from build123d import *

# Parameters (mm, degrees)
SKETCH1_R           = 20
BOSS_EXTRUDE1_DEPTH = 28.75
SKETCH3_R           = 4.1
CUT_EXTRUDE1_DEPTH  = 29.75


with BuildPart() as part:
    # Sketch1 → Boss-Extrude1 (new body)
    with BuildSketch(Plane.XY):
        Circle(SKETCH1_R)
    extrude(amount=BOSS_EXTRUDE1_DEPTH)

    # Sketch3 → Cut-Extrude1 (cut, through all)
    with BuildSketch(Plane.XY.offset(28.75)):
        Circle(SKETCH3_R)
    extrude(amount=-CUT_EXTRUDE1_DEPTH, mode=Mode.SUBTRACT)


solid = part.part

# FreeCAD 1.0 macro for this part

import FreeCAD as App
import Part
import Sketcher
Q = App.Units.Quantity

doc = App.newDocument("Part")
body = doc.addObject("PartDesign::Body", "Body")

# Sketch on XY plane
sketch1 = doc.addObject("Sketcher::SketchObject", "Sketch")
body.addObject(sketch1)
sketch1.AttachmentSupport = (doc.XY_Plane, [""])
sketch1.MapMode = "FlatFace"
sketch1.addGeometry(Part.Circle(App.Vector(0, 0, 0), App.Vector(0, 0, 1), 20), False)
sketch1.addConstraint(Sketcher.Constraint("Coincident", 0, 3, -1, 1))
sketch1.addConstraint(Sketcher.Constraint("Diameter", 0, Q("40 mm")))
pad1 = doc.addObject("PartDesign::Pad", "Pad")
body.addObject(pad1)
pad1.Profile = sketch1
pad1.Length = 28.75

# Sketch on XY plane
sketch2 = doc.addObject("Sketcher::SketchObject", "Sketch001")
body.addObject(sketch2)
sketch2.AttachmentSupport = (doc.XY_Plane, [""])
sketch2.MapMode = "FlatFace"
sketch2.AttachmentOffset = App.Placement(App.Vector(0, 0, 28.75), App.Rotation())
sketch2.addGeometry(Part.Circle(App.Vector(0, 0, 0), App.Vector(0, 0, 1), 4.1), False)
sketch2.addConstraint(Sketcher.Constraint("Coincident", 0, 3, -1, 1))
sketch2.addConstraint(Sketcher.Constraint("Diameter", 0, Q("8.2 mm")))
pocket1 = doc.addObject("PartDesign::Pocket", "Pocket")
body.addObject(pocket1)
pocket1.Profile = sketch2
pocket1.Type = "ThroughAll"

doc.recompute()
